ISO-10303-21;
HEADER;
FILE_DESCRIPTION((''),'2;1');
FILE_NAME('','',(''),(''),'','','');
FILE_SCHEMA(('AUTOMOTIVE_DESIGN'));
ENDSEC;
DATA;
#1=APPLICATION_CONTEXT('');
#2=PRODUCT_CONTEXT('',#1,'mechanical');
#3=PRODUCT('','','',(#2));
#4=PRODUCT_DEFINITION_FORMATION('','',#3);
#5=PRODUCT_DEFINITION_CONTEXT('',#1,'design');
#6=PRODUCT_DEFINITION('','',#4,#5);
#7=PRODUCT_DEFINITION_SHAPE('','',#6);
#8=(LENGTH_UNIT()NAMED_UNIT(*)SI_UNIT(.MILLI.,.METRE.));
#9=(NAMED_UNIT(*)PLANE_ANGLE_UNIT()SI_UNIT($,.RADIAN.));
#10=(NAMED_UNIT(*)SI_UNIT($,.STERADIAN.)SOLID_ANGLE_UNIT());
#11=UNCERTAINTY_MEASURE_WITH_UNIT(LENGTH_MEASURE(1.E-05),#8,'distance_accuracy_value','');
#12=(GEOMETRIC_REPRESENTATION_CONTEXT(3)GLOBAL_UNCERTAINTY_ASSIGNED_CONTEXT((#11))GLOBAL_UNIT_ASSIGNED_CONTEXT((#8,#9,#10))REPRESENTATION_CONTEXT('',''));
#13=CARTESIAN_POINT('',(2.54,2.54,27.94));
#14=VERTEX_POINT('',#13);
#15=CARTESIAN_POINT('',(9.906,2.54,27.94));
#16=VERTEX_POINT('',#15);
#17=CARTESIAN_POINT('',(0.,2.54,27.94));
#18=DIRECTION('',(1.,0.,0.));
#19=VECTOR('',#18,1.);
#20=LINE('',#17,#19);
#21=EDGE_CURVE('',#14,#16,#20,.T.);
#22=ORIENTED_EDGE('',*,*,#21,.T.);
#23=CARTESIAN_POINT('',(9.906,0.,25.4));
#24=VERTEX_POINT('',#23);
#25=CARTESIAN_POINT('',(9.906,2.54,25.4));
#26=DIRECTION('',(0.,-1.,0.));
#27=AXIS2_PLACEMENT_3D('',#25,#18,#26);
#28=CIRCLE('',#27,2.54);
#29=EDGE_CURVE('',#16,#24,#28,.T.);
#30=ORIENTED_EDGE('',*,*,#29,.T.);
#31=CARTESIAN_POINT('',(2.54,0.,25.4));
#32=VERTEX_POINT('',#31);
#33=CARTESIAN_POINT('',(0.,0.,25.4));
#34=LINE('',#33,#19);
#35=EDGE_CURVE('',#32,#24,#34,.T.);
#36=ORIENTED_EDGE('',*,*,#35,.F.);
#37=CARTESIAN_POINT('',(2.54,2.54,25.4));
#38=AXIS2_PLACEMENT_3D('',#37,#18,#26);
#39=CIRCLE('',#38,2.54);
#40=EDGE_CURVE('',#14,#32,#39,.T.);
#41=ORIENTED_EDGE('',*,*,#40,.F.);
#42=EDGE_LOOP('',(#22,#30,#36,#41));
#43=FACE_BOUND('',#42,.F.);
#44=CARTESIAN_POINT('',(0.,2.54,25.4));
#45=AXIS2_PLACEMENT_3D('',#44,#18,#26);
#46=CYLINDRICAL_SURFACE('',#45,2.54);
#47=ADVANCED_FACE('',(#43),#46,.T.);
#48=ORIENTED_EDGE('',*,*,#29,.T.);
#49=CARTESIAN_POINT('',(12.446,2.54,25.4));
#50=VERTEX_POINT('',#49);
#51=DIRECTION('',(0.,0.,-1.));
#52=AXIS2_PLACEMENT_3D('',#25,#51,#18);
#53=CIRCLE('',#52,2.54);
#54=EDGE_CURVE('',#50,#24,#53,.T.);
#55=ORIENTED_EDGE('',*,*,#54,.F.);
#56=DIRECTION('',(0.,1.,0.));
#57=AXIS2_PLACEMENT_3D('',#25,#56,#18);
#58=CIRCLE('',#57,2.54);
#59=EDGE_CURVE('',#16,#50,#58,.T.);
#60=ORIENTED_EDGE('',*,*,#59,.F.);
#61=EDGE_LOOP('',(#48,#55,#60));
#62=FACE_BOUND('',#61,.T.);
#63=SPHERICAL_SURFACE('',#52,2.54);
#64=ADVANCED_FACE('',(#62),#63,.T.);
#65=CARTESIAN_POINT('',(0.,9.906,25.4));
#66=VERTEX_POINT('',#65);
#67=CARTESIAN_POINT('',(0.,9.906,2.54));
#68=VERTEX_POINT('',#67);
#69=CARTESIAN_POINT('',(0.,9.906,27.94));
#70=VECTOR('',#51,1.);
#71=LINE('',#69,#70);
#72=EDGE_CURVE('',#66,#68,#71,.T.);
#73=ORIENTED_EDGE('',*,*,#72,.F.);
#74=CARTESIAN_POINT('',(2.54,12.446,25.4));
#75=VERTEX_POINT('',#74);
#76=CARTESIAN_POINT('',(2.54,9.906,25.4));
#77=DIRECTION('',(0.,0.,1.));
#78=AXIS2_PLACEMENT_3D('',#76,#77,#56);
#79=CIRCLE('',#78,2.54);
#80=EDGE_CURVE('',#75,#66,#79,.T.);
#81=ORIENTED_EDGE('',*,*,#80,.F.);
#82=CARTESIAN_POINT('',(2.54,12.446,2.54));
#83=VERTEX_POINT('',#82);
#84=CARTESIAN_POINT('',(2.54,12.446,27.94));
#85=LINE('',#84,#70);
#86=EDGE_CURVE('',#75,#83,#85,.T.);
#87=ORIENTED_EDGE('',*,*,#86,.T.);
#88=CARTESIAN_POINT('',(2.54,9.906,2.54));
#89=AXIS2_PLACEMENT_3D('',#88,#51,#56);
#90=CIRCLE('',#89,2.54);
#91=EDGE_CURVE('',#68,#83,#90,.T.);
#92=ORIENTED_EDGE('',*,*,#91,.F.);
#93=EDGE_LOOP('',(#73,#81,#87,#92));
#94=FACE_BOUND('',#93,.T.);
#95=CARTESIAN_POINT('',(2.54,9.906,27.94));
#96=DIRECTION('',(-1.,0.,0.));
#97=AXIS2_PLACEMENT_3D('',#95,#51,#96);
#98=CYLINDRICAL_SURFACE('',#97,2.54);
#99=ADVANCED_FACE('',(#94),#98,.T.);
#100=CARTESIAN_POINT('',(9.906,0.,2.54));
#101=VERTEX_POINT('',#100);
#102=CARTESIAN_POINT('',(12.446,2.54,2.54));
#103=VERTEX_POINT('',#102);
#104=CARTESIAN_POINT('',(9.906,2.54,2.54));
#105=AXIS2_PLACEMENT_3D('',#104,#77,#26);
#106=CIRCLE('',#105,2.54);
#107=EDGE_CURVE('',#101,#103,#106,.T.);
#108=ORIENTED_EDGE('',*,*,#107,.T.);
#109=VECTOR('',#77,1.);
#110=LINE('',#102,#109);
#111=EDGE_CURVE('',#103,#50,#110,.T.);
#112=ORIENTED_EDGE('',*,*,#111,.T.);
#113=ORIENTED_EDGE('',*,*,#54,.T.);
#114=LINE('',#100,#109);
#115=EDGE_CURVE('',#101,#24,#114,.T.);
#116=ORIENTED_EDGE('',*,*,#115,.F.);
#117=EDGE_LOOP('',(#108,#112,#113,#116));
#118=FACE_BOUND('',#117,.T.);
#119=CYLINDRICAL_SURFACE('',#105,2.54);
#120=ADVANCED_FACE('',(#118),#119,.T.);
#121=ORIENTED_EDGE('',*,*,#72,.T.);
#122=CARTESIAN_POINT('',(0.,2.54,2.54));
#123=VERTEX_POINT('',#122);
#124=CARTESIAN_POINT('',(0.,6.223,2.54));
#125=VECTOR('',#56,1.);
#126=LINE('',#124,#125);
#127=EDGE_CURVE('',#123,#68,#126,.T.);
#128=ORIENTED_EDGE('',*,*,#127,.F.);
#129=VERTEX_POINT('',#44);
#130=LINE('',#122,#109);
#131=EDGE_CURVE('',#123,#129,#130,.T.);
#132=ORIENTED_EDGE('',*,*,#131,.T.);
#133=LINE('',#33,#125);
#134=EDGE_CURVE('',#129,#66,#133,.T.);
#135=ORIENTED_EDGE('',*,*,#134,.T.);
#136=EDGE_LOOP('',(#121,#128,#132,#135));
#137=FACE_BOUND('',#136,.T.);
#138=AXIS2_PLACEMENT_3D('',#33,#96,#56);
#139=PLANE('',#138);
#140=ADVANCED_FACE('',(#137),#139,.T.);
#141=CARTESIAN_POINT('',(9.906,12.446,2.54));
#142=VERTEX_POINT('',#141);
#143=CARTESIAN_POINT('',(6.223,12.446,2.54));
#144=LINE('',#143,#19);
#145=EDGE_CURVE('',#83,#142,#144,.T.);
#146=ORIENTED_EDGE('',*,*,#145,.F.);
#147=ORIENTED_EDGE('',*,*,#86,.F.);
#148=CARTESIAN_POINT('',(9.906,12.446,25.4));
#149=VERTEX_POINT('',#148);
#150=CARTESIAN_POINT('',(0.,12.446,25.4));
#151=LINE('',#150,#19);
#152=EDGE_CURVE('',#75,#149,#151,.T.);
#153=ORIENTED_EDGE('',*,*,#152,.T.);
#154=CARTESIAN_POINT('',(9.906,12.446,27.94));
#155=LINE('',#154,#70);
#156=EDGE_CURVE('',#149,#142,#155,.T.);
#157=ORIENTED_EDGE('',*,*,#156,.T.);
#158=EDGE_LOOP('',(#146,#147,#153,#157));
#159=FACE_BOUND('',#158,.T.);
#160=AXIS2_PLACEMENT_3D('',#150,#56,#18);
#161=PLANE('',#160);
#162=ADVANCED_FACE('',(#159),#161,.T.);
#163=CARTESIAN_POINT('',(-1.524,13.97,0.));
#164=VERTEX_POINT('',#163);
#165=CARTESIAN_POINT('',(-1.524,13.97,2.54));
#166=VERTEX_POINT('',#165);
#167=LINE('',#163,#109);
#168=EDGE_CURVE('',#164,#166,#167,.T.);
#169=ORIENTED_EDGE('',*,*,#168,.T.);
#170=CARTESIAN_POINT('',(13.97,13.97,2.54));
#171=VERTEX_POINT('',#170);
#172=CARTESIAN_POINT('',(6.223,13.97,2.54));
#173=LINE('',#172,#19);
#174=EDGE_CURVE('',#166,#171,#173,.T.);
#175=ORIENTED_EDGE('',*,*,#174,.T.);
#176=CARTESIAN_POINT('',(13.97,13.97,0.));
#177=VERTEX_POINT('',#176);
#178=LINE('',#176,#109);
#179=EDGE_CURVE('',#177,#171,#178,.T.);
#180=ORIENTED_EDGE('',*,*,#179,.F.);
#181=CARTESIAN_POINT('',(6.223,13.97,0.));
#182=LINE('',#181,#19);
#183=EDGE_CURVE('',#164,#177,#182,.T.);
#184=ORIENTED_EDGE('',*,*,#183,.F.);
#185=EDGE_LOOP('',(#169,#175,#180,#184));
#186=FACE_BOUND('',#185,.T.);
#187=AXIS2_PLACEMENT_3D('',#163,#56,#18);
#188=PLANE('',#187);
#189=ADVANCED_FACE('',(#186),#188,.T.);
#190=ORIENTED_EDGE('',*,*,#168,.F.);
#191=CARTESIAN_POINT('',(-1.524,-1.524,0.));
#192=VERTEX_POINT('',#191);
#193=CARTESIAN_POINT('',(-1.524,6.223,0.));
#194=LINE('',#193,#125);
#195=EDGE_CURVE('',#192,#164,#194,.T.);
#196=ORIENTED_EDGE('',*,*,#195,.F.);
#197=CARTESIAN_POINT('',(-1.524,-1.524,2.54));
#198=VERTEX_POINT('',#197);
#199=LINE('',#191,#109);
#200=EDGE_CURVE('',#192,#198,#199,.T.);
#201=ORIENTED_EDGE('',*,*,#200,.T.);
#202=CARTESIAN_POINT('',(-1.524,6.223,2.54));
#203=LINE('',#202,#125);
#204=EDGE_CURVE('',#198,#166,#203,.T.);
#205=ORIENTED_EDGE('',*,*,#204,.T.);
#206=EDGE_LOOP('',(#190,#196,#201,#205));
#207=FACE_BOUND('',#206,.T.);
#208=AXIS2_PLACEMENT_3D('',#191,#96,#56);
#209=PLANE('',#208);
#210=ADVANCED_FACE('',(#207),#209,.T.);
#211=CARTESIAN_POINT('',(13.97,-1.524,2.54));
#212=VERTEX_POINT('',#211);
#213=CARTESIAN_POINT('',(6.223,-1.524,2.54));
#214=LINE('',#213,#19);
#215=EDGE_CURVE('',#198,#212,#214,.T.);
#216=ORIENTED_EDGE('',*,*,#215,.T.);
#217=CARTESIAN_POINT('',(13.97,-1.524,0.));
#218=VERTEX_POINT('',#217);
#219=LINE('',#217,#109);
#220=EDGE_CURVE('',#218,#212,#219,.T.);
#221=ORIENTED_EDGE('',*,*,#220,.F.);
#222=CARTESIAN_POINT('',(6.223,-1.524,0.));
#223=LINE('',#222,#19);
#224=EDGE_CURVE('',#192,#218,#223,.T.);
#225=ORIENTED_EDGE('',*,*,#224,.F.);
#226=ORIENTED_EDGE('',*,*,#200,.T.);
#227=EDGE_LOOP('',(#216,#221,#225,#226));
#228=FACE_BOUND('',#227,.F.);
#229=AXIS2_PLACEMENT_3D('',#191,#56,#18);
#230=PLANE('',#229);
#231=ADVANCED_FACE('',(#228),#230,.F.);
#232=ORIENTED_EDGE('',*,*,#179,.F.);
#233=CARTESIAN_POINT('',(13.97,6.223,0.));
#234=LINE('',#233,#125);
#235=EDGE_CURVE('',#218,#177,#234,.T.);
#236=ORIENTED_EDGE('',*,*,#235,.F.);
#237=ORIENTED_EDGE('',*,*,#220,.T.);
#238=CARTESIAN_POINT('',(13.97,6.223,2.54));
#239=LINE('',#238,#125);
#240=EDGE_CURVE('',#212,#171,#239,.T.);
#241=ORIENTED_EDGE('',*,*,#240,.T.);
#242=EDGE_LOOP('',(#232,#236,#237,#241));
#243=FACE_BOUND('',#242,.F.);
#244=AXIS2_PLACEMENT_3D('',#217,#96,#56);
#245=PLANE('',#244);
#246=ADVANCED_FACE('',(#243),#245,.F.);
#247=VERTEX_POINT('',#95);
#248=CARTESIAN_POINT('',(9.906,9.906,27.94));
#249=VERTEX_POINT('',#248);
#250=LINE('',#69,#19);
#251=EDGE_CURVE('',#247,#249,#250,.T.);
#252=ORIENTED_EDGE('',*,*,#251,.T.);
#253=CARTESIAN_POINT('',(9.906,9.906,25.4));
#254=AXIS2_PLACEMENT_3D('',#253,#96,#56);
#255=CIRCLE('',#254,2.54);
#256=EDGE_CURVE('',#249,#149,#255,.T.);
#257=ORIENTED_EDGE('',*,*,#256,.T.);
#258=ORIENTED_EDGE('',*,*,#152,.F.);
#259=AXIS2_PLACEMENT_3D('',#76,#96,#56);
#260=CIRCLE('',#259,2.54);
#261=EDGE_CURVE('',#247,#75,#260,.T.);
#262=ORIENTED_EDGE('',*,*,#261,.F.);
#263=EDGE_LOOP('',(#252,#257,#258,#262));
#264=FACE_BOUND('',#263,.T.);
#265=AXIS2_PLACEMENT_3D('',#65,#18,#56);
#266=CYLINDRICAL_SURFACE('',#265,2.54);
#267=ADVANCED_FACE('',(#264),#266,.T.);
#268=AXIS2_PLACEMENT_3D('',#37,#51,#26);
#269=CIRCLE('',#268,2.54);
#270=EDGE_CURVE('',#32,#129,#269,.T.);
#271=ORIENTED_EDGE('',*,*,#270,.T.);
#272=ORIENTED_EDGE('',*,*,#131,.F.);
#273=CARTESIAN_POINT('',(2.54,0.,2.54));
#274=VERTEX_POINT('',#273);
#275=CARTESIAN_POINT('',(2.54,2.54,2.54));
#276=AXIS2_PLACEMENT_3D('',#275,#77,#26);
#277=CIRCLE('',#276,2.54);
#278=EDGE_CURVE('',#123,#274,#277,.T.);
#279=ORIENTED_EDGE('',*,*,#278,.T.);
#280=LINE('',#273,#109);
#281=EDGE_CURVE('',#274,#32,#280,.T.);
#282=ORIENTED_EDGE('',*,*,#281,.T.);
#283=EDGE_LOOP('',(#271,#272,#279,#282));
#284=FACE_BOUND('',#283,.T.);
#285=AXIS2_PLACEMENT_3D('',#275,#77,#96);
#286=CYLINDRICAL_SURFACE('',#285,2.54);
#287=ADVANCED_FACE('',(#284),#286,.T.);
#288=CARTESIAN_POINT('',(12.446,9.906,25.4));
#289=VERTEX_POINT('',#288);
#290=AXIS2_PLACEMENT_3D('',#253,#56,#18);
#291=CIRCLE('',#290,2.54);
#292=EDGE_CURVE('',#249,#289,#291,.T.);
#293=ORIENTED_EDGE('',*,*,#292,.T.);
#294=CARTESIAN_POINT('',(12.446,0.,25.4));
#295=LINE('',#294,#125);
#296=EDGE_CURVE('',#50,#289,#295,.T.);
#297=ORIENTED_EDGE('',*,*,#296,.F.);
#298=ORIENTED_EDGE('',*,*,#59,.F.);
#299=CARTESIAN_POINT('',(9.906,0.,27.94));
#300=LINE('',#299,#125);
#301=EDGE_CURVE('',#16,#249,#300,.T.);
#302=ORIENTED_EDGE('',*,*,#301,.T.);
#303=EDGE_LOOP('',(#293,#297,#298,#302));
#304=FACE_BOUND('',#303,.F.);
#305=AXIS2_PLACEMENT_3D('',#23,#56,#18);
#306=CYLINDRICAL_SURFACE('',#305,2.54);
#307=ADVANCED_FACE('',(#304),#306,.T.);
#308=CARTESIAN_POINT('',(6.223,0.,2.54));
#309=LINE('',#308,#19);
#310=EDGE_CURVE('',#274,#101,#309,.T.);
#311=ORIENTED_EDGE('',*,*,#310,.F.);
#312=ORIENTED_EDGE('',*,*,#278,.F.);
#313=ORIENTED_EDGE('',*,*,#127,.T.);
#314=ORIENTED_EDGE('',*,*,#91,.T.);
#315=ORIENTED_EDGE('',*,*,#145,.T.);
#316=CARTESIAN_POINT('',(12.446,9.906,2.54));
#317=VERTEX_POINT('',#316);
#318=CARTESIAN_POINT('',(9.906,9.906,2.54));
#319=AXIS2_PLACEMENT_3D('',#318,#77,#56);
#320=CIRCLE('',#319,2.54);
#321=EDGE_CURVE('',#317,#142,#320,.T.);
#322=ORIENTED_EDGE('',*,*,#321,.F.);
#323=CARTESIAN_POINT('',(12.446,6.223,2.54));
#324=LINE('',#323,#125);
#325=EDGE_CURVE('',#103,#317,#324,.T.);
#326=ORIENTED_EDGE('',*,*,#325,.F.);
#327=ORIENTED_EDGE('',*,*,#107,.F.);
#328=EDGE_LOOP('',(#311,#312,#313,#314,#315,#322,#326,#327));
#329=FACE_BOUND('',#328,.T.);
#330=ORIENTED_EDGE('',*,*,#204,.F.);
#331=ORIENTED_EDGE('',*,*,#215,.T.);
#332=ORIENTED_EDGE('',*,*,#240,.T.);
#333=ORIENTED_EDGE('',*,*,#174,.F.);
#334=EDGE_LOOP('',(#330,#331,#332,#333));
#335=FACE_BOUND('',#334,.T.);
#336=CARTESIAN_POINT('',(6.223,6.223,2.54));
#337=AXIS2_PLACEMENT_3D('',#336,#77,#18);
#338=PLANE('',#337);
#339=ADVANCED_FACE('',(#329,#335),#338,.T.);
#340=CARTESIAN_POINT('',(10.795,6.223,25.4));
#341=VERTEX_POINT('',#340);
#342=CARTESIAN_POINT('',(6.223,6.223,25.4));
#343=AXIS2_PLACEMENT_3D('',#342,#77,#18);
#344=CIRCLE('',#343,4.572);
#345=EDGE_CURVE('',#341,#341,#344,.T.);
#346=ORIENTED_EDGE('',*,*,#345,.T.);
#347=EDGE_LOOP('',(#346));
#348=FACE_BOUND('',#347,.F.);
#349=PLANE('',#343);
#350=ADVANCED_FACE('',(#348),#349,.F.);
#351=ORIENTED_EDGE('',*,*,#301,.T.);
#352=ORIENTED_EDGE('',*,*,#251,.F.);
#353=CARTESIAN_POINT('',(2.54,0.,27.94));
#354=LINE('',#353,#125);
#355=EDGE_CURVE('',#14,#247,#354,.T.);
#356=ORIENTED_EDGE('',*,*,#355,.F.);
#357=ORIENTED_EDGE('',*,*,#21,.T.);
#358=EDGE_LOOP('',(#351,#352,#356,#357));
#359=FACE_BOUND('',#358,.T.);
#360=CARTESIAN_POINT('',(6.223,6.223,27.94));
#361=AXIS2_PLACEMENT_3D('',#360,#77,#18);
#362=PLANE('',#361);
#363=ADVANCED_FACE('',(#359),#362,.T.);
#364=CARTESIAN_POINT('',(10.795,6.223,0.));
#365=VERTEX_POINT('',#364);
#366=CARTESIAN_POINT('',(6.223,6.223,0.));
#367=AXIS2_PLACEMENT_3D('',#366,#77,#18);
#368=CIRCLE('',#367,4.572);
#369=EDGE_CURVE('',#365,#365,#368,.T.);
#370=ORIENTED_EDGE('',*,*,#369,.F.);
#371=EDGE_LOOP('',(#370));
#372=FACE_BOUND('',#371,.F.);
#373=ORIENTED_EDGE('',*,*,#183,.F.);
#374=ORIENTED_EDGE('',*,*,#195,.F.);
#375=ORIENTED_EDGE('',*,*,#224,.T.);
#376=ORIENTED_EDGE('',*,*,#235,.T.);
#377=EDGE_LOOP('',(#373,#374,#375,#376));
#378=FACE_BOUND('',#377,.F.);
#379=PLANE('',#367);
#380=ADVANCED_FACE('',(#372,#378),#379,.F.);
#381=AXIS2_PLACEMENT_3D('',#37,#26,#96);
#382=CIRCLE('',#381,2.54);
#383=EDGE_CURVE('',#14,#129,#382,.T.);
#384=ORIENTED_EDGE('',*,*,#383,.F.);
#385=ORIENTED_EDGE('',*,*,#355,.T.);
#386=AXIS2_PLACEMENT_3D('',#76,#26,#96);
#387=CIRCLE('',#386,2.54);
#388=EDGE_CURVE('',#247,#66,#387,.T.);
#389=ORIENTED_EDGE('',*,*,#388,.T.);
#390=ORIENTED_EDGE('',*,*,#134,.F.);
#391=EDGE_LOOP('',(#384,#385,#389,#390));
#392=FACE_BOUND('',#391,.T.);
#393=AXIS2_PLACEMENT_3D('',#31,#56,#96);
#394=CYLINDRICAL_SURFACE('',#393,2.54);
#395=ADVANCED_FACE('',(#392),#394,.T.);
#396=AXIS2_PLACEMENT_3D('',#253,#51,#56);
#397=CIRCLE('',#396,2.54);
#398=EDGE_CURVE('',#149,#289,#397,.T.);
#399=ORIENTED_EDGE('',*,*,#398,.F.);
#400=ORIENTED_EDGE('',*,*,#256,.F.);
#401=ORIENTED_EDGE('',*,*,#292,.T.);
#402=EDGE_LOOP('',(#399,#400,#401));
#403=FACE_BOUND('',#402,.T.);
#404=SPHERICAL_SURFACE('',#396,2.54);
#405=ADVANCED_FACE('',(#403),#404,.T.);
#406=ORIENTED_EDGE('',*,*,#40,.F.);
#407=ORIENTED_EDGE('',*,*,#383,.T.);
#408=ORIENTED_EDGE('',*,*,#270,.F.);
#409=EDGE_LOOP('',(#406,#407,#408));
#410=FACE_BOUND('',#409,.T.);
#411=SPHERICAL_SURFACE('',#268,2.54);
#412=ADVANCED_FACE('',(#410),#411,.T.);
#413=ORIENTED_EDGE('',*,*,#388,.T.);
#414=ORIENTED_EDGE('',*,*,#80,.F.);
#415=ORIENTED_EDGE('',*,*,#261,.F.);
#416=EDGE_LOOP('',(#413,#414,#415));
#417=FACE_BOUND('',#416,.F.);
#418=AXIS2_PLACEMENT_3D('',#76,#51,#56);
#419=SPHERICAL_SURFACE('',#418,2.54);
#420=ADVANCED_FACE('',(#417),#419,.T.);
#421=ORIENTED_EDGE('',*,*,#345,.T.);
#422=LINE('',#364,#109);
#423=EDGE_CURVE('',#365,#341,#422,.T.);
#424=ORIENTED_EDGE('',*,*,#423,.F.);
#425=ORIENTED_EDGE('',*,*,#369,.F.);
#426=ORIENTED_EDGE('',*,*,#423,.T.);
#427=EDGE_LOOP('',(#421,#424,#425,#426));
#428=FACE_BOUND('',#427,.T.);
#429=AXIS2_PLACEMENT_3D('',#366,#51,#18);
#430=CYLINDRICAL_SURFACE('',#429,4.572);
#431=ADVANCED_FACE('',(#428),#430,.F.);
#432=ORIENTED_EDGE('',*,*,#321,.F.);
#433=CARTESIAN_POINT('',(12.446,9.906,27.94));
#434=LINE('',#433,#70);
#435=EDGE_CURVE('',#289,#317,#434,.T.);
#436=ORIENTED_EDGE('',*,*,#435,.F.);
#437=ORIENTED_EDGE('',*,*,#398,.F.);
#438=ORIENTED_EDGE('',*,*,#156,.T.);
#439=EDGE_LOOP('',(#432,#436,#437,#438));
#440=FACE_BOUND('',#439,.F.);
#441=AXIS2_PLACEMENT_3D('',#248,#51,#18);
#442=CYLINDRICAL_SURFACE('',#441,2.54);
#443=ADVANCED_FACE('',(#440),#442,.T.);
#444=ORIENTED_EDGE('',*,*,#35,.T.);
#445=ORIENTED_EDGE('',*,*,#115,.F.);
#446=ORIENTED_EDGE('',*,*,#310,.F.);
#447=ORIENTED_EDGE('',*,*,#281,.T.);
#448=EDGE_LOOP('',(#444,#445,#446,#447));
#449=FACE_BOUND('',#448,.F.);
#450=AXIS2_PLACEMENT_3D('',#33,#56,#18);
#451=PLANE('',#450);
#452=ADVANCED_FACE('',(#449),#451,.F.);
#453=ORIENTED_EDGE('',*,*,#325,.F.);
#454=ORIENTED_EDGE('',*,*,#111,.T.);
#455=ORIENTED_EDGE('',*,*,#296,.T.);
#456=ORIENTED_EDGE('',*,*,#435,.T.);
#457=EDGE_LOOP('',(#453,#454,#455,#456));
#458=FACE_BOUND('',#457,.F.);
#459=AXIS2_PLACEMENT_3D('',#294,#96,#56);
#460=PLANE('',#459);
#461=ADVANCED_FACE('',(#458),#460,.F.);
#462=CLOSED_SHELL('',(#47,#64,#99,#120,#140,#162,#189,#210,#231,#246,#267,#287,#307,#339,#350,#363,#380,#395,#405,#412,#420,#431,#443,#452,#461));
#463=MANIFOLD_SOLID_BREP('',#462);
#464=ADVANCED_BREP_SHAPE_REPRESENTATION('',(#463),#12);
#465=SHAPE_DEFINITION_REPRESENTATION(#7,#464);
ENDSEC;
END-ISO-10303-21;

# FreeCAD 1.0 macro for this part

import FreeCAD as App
import Part
import Sketcher
Q = App.Units.Quantity


def edges_at(feature, points):
    """Names of the edges that pass closest to the given points."""
    edges = feature.Shape.Edges
    near = lambda p: min(range(len(edges)), key=lambda i: edges[i].distToShape(Part.Vertex(*p))[0])
    return sorted({f"Edge{near(p) + 1}" for p in points})


def add_polygon(sketch, points):
    """Adds a closed chain of lines whose ends are joined by coincident constraints."""
    first, n = sketch.GeometryCount, len(points)
    for a, b in zip(points, points[1:] + points[:1]):
        sketch.addGeometry(Part.LineSegment(App.Vector(*a, 0), App.Vector(*b, 0)), False)
    for i in range(n):
        sketch.addConstraint(Sketcher.Constraint("Coincident", first + i, 2, first + (i + 1) % n, 1))

doc = App.newDocument("Part")
body = doc.addObject("PartDesign::Body", "Body")

# Sketch on XY plane
sketch1 = doc.addObject("Sketcher::SketchObject", "Sketch")
body.addObject(sketch1)
sketch1.AttachmentSupport = (doc.XY_Plane, [""])
sketch1.MapMode = "FlatFace"
add_polygon(sketch1, [(0, 12.446), (0, 0), (12.446, 0), (12.446, 12.446)])  # lines 0-3
sketch1.addGeometry(Part.Circle(App.Vector(6.223, 6.223, 0), App.Vector(0, 0, 1), 4.572), False)  # 4
sketch1.addConstraint([
    Sketcher.Constraint("Vertical", 0),
    Sketcher.Constraint("Horizontal", 1),
    Sketcher.Constraint("Vertical", 2),
    Sketcher.Constraint("Horizontal", 3),
    Sketcher.Constraint("Coincident", 0, 2, -1, 1),
    Sketcher.Constraint("Equal", 3, 0),
    Sketcher.Constraint("Diameter", 4, Q("0.36 in")),
    Sketcher.Constraint("DistanceX", 1, 1, 1, 2, Q("0.49 in")),
    Sketcher.Constraint("DistanceX", -1, 1, 4, 3, Q("0.245 in")),
    Sketcher.Constraint("DistanceY", -1, 1, 4, 3, Q("0.245 in")),
])
pad1 = doc.addObject("PartDesign::Pad", "Pad")
body.addObject(pad1)
pad1.Profile = sketch1
pad1.Length = Q("1 in")

# Sketch on XY plane
sketch2 = doc.addObject("Sketcher::SketchObject", "Sketch001")
body.addObject(sketch2)
sketch2.AttachmentSupport = (doc.XY_Plane, [""])
sketch2.MapMode = "FlatFace"
add_polygon(sketch2, [(-1.524, 13.97), (-1.524, -1.524), (13.97, -1.524), (13.97, 13.97)])  # lines 0-3
add_polygon(sketch2, [(12.446, 0), (0, 0), (0, 12.446), (12.446, 12.446)])  # lines 4-7
sketch2.addConstraint([
    Sketcher.Constraint("Vertical", 0),
    Sketcher.Constraint("Horizontal", 1),
    Sketcher.Constraint("Vertical", 2),
    Sketcher.Constraint("Horizontal", 3),
    Sketcher.Constraint("Horizontal", 4),
    Sketcher.Constraint("Vertical", 5),
    Sketcher.Constraint("Horizontal", 6),
    Sketcher.Constraint("Vertical", 7),
    Sketcher.Constraint("Coincident", 4, 2, -1, 1),
    Sketcher.Constraint("Equal", 3, 0),
    Sketcher.Constraint("Equal", 6, 5),
    Sketcher.Constraint("DistanceX", 1, 1, 1, 2, Q("0.61 in")),
    Sketcher.Constraint("DistanceX", 4, 2, 4, 1, Q("0.49 in")),
    Sketcher.Constraint("DistanceX", 0, 2, -1, 1, Q("0.06 in")),
    Sketcher.Constraint("DistanceY", 0, 2, -1, 1, Q("0.06 in")),
])
pad2 = doc.addObject("PartDesign::Pad", "Pad001")
body.addObject(pad2)
pad2.Profile = sketch2
pad2.Length = Q("0.1 in")

# Sketch on XY plane
sketch3 = doc.addObject("Sketcher::SketchObject", "Sketch002")
body.addObject(sketch3)
sketch3.AttachmentSupport = (doc.XY_Plane, [""])
sketch3.MapMode = "FlatFace"
sketch3.AttachmentOffset = App.Placement(App.Vector(0, 0, 1 * 25.4), App.Rotation())
add_polygon(sketch3, [(0, 12.446), (0, 0), (12.446, 0), (12.446, 12.446)])  # lines 0-3
sketch3.addConstraint([
    Sketcher.Constraint("Vertical", 0),
    Sketcher.Constraint("Horizontal", 1),
    Sketcher.Constraint("Vertical", 2),
    Sketcher.Constraint("Horizontal", 3),
    Sketcher.Constraint("Coincident", 0, 2, -1, 1),
    Sketcher.Constraint("Equal", 3, 0),
    Sketcher.Constraint("DistanceX", 1, 1, 1, 2, Q("0.49 in")),
])
pad3 = doc.addObject("PartDesign::Pad", "Pad002")
body.addObject(pad3)
pad3.Profile = sketch3
pad3.Length = Q("0.1 in")
doc.recompute()

fillet = doc.addObject("PartDesign::Fillet", "Fillet")
body.addObject(fillet)
fillet.Base = (pad3, edges_at(pad3, [
    (0, 12.446, 15.24),
    (12.446, 12.446, 15.24),
    (0, 0, 15.24),
    (12.446, 0, 15.24),
    (6.223, 12.446, 27.94),
    (12.446, 6.223, 27.94),
    (6.223, 0, 27.94),
    (0, 6.223, 27.94),
]))
fillet.Radius = Q("0.1 in")

doc.recompute()
